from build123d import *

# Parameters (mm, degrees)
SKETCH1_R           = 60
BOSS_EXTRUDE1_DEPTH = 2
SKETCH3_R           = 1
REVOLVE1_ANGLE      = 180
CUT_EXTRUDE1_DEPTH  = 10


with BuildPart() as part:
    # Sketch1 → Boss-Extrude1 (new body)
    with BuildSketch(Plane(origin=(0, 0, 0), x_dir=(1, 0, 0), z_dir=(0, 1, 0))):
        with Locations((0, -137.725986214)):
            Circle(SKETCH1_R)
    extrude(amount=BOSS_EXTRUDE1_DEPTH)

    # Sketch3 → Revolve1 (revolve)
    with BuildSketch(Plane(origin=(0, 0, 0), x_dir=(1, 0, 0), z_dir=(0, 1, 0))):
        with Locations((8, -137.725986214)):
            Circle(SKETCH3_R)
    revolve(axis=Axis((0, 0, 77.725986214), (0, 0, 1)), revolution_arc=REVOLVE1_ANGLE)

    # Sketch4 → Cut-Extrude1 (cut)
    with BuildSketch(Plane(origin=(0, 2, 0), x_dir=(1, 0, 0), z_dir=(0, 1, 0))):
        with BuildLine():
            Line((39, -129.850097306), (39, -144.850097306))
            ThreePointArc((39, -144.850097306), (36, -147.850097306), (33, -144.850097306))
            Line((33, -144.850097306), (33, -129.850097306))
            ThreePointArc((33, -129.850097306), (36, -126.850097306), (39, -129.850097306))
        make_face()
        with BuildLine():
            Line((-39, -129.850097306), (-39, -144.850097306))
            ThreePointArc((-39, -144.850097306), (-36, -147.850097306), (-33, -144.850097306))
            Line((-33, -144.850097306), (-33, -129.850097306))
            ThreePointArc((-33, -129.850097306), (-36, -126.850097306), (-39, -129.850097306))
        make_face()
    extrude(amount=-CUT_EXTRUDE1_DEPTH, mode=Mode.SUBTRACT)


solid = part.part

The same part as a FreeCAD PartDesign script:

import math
import FreeCAD as App
import Part
import Sketcher

V = App.Vector
Q = App.Units.Quantity

doc = App.newDocument("Part")
params = doc.addObject("Spreadsheet::Sheet", "Params")
for row, (alias, value) in enumerate([
    ("sketch1_diameter", "120 mm"),
    ("pad1_length", "2 mm"),
    ("sketch2_diameter", "2 mm"),
    ("revolution_angle", "180 deg"),
    ("sketch3_radius", "3 mm"),
    ("sketch3_height", "15 mm"),
    ("pocket1_length", "10 mm"),
], start=1):
    params.set(f"A{row}", alias)
    params.set(f"B{row}", "=" + value)
    params.setAlias(f"B{row}", alias)

body = doc.addObject("PartDesign::Body", "Body")

# Sketch on XZ plane
sketch1 = doc.addObject("Sketcher::SketchObject", "Sketch")
body.addObject(sketch1)
sketch1.AttachmentSupport = (doc.XZ_Plane, [""])
sketch1.MapMode = "FlatFace"
sketch1.addGeometry(Part.Circle(V(0, 137.725986, 0), V(0, 0, 1), 60), False)
sketch1.addConstraint(Sketcher.Constraint("PointOnObject", 0, 3, -2))
sketch1.addConstraint(Sketcher.Constraint("Diameter", 0, Q("120 mm")))
sketch1.addConstraint(Sketcher.Constraint("DistanceY", -1, 1, 0, 3, Q("137.725986 mm")))
sketch1.setExpression("Constraints[1]", "Params.sketch1_diameter")
pad1 = doc.addObject("PartDesign::Pad", "Pad")
body.addObject(pad1)
pad1.Profile = sketch1
pad1.setExpression("Length", "Params.pad1_length")
pad1.Reversed = True

# Sketch on XZ plane
sketch2 = doc.addObject("Sketcher::SketchObject", "Sketch001")
body.addObject(sketch2)
sketch2.AttachmentSupport = (doc.XZ_Plane, [""])
sketch2.MapMode = "FlatFace"
sketch2.addGeometry(Part.Circle(V(8, 137.725986, 0), V(0, 0, 1), 1), False)
sketch2.addConstraint(Sketcher.Constraint("Diameter", 0, Q("2 mm")))
sketch2.addConstraint(Sketcher.Constraint("DistanceX", -1, 1, 0, 3, Q("8 mm")))
sketch2.addConstraint(Sketcher.Constraint("DistanceY", -1, 1, 0, 3, Q("137.725986 mm")))
sketch2.setExpression("Constraints[0]", "Params.sketch2_diameter")
revolution = doc.addObject("PartDesign::Revolution", "Revolution")
body.addObject(revolution)
revolution.Profile = sketch2
revolution.ReferenceAxis = (sketch2, ["V_Axis"])
revolution.setExpression("Angle", "Params.revolution_angle")

# Sketch on XZ plane
sketch3 = doc.addObject("Sketcher::SketchObject", "Sketch002")
body.addObject(sketch3)
sketch3.AttachmentSupport = (doc.XZ_Plane, [""])
sketch3.MapMode = "FlatFace"
sketch3.AttachmentOffset = App.Placement(V(0, 0, -2), App.Rotation())
sketch3.addGeometry(Part.LineSegment(V(39, 144.850097, 0), V(39, 129.850097, 0)), False)
sketch3.addGeometry(Part.ArcOfCircle(Part.Circle(V(36, 129.850097, 0), V(0, 0, 1), 3), math.radians(180), math.radians(360)), False)
sketch3.addGeometry(Part.LineSegment(V(33, 129.850097, 0), V(33, 144.850097, 0)), False)
sketch3.addGeometry(Part.ArcOfCircle(Part.Circle(V(36, 144.850097, 0), V(0, 0, 1), 3), math.radians(0), math.radians(180)), False)
sketch3.addGeometry(Part.LineSegment(V(-39, 129.850097, 0), V(-39, 144.850097, 0)), False)
sketch3.addGeometry(Part.ArcOfCircle(Part.Circle(V(-36, 144.850097, 0), V(0, 0, 1), 3), math.radians(0), math.radians(180)), False)
sketch3.addGeometry(Part.LineSegment(V(-33, 144.850097, 0), V(-33, 129.850097, 0)), False)
sketch3.addGeometry(Part.ArcOfCircle(Part.Circle(V(-36, 129.850097, 0), V(0, 0, 1), 3), math.radians(180), math.radians(360)), False)
sketch3.addConstraint(Sketcher.Constraint("Tangent", 0, 2, 1, 2))
sketch3.addConstraint(Sketcher.Constraint("Tangent", 1, 1, 2, 1))
sketch3.addConstraint(Sketcher.Constraint("Tangent", 2, 2, 3, 2))
sketch3.addConstraint(Sketcher.Constraint("Tangent", 3, 1, 0, 1))
sketch3.addConstraint(Sketcher.Constraint("Tangent", 4, 2, 5, 2))
sketch3.addConstraint(Sketcher.Constraint("Tangent", 5, 1, 6, 1))
sketch3.addConstraint(Sketcher.Constraint("Tangent", 6, 2, 7, 2))
sketch3.addConstraint(Sketcher.Constraint("Tangent", 7, 1, 4, 1))
sketch3.addConstraint(Sketcher.Constraint("Vertical", 0))
sketch3.addConstraint(Sketcher.Constraint("Vertical", 2))
sketch3.addConstraint(Sketcher.Constraint("Vertical", 4))
sketch3.addConstraint(Sketcher.Constraint("Vertical", 6))
sketch3.addConstraint(Sketcher.Constraint("Equal", 3, 5))
sketch3.addConstraint(Sketcher.Constraint("Symmetric", 3, 3, 5, 3, -2))
sketch3.addConstraint(Sketcher.Constraint("Horizontal", 1, 3, 7, 3))
sketch3.addConstraint(Sketcher.Constraint("Radius", 1, Q("3 mm")))
sketch3.addConstraint(Sketcher.Constraint("DistanceY", 0, 2, 0, 1, Q("15 mm")))
sketch3.addConstraint(Sketcher.Constraint("DistanceX", -1, 1, 1, 3, Q("36 mm")))
sketch3.addConstraint(Sketcher.Constraint("DistanceY", -1, 1, 1, 3, Q("129.850097 mm")))
sketch3.setExpression("Constraints[15]", "Params.sketch3_radius")
sketch3.setExpression("Constraints[16]", "Params.sketch3_height")
pocket1 = doc.addObject("PartDesign::Pocket", "Pocket")
body.addObject(pocket1)
pocket1.Profile = sketch3
pocket1.setExpression("Length", "Params.pocket1_length")
pocket1.Reversed = True

doc.recompute()
